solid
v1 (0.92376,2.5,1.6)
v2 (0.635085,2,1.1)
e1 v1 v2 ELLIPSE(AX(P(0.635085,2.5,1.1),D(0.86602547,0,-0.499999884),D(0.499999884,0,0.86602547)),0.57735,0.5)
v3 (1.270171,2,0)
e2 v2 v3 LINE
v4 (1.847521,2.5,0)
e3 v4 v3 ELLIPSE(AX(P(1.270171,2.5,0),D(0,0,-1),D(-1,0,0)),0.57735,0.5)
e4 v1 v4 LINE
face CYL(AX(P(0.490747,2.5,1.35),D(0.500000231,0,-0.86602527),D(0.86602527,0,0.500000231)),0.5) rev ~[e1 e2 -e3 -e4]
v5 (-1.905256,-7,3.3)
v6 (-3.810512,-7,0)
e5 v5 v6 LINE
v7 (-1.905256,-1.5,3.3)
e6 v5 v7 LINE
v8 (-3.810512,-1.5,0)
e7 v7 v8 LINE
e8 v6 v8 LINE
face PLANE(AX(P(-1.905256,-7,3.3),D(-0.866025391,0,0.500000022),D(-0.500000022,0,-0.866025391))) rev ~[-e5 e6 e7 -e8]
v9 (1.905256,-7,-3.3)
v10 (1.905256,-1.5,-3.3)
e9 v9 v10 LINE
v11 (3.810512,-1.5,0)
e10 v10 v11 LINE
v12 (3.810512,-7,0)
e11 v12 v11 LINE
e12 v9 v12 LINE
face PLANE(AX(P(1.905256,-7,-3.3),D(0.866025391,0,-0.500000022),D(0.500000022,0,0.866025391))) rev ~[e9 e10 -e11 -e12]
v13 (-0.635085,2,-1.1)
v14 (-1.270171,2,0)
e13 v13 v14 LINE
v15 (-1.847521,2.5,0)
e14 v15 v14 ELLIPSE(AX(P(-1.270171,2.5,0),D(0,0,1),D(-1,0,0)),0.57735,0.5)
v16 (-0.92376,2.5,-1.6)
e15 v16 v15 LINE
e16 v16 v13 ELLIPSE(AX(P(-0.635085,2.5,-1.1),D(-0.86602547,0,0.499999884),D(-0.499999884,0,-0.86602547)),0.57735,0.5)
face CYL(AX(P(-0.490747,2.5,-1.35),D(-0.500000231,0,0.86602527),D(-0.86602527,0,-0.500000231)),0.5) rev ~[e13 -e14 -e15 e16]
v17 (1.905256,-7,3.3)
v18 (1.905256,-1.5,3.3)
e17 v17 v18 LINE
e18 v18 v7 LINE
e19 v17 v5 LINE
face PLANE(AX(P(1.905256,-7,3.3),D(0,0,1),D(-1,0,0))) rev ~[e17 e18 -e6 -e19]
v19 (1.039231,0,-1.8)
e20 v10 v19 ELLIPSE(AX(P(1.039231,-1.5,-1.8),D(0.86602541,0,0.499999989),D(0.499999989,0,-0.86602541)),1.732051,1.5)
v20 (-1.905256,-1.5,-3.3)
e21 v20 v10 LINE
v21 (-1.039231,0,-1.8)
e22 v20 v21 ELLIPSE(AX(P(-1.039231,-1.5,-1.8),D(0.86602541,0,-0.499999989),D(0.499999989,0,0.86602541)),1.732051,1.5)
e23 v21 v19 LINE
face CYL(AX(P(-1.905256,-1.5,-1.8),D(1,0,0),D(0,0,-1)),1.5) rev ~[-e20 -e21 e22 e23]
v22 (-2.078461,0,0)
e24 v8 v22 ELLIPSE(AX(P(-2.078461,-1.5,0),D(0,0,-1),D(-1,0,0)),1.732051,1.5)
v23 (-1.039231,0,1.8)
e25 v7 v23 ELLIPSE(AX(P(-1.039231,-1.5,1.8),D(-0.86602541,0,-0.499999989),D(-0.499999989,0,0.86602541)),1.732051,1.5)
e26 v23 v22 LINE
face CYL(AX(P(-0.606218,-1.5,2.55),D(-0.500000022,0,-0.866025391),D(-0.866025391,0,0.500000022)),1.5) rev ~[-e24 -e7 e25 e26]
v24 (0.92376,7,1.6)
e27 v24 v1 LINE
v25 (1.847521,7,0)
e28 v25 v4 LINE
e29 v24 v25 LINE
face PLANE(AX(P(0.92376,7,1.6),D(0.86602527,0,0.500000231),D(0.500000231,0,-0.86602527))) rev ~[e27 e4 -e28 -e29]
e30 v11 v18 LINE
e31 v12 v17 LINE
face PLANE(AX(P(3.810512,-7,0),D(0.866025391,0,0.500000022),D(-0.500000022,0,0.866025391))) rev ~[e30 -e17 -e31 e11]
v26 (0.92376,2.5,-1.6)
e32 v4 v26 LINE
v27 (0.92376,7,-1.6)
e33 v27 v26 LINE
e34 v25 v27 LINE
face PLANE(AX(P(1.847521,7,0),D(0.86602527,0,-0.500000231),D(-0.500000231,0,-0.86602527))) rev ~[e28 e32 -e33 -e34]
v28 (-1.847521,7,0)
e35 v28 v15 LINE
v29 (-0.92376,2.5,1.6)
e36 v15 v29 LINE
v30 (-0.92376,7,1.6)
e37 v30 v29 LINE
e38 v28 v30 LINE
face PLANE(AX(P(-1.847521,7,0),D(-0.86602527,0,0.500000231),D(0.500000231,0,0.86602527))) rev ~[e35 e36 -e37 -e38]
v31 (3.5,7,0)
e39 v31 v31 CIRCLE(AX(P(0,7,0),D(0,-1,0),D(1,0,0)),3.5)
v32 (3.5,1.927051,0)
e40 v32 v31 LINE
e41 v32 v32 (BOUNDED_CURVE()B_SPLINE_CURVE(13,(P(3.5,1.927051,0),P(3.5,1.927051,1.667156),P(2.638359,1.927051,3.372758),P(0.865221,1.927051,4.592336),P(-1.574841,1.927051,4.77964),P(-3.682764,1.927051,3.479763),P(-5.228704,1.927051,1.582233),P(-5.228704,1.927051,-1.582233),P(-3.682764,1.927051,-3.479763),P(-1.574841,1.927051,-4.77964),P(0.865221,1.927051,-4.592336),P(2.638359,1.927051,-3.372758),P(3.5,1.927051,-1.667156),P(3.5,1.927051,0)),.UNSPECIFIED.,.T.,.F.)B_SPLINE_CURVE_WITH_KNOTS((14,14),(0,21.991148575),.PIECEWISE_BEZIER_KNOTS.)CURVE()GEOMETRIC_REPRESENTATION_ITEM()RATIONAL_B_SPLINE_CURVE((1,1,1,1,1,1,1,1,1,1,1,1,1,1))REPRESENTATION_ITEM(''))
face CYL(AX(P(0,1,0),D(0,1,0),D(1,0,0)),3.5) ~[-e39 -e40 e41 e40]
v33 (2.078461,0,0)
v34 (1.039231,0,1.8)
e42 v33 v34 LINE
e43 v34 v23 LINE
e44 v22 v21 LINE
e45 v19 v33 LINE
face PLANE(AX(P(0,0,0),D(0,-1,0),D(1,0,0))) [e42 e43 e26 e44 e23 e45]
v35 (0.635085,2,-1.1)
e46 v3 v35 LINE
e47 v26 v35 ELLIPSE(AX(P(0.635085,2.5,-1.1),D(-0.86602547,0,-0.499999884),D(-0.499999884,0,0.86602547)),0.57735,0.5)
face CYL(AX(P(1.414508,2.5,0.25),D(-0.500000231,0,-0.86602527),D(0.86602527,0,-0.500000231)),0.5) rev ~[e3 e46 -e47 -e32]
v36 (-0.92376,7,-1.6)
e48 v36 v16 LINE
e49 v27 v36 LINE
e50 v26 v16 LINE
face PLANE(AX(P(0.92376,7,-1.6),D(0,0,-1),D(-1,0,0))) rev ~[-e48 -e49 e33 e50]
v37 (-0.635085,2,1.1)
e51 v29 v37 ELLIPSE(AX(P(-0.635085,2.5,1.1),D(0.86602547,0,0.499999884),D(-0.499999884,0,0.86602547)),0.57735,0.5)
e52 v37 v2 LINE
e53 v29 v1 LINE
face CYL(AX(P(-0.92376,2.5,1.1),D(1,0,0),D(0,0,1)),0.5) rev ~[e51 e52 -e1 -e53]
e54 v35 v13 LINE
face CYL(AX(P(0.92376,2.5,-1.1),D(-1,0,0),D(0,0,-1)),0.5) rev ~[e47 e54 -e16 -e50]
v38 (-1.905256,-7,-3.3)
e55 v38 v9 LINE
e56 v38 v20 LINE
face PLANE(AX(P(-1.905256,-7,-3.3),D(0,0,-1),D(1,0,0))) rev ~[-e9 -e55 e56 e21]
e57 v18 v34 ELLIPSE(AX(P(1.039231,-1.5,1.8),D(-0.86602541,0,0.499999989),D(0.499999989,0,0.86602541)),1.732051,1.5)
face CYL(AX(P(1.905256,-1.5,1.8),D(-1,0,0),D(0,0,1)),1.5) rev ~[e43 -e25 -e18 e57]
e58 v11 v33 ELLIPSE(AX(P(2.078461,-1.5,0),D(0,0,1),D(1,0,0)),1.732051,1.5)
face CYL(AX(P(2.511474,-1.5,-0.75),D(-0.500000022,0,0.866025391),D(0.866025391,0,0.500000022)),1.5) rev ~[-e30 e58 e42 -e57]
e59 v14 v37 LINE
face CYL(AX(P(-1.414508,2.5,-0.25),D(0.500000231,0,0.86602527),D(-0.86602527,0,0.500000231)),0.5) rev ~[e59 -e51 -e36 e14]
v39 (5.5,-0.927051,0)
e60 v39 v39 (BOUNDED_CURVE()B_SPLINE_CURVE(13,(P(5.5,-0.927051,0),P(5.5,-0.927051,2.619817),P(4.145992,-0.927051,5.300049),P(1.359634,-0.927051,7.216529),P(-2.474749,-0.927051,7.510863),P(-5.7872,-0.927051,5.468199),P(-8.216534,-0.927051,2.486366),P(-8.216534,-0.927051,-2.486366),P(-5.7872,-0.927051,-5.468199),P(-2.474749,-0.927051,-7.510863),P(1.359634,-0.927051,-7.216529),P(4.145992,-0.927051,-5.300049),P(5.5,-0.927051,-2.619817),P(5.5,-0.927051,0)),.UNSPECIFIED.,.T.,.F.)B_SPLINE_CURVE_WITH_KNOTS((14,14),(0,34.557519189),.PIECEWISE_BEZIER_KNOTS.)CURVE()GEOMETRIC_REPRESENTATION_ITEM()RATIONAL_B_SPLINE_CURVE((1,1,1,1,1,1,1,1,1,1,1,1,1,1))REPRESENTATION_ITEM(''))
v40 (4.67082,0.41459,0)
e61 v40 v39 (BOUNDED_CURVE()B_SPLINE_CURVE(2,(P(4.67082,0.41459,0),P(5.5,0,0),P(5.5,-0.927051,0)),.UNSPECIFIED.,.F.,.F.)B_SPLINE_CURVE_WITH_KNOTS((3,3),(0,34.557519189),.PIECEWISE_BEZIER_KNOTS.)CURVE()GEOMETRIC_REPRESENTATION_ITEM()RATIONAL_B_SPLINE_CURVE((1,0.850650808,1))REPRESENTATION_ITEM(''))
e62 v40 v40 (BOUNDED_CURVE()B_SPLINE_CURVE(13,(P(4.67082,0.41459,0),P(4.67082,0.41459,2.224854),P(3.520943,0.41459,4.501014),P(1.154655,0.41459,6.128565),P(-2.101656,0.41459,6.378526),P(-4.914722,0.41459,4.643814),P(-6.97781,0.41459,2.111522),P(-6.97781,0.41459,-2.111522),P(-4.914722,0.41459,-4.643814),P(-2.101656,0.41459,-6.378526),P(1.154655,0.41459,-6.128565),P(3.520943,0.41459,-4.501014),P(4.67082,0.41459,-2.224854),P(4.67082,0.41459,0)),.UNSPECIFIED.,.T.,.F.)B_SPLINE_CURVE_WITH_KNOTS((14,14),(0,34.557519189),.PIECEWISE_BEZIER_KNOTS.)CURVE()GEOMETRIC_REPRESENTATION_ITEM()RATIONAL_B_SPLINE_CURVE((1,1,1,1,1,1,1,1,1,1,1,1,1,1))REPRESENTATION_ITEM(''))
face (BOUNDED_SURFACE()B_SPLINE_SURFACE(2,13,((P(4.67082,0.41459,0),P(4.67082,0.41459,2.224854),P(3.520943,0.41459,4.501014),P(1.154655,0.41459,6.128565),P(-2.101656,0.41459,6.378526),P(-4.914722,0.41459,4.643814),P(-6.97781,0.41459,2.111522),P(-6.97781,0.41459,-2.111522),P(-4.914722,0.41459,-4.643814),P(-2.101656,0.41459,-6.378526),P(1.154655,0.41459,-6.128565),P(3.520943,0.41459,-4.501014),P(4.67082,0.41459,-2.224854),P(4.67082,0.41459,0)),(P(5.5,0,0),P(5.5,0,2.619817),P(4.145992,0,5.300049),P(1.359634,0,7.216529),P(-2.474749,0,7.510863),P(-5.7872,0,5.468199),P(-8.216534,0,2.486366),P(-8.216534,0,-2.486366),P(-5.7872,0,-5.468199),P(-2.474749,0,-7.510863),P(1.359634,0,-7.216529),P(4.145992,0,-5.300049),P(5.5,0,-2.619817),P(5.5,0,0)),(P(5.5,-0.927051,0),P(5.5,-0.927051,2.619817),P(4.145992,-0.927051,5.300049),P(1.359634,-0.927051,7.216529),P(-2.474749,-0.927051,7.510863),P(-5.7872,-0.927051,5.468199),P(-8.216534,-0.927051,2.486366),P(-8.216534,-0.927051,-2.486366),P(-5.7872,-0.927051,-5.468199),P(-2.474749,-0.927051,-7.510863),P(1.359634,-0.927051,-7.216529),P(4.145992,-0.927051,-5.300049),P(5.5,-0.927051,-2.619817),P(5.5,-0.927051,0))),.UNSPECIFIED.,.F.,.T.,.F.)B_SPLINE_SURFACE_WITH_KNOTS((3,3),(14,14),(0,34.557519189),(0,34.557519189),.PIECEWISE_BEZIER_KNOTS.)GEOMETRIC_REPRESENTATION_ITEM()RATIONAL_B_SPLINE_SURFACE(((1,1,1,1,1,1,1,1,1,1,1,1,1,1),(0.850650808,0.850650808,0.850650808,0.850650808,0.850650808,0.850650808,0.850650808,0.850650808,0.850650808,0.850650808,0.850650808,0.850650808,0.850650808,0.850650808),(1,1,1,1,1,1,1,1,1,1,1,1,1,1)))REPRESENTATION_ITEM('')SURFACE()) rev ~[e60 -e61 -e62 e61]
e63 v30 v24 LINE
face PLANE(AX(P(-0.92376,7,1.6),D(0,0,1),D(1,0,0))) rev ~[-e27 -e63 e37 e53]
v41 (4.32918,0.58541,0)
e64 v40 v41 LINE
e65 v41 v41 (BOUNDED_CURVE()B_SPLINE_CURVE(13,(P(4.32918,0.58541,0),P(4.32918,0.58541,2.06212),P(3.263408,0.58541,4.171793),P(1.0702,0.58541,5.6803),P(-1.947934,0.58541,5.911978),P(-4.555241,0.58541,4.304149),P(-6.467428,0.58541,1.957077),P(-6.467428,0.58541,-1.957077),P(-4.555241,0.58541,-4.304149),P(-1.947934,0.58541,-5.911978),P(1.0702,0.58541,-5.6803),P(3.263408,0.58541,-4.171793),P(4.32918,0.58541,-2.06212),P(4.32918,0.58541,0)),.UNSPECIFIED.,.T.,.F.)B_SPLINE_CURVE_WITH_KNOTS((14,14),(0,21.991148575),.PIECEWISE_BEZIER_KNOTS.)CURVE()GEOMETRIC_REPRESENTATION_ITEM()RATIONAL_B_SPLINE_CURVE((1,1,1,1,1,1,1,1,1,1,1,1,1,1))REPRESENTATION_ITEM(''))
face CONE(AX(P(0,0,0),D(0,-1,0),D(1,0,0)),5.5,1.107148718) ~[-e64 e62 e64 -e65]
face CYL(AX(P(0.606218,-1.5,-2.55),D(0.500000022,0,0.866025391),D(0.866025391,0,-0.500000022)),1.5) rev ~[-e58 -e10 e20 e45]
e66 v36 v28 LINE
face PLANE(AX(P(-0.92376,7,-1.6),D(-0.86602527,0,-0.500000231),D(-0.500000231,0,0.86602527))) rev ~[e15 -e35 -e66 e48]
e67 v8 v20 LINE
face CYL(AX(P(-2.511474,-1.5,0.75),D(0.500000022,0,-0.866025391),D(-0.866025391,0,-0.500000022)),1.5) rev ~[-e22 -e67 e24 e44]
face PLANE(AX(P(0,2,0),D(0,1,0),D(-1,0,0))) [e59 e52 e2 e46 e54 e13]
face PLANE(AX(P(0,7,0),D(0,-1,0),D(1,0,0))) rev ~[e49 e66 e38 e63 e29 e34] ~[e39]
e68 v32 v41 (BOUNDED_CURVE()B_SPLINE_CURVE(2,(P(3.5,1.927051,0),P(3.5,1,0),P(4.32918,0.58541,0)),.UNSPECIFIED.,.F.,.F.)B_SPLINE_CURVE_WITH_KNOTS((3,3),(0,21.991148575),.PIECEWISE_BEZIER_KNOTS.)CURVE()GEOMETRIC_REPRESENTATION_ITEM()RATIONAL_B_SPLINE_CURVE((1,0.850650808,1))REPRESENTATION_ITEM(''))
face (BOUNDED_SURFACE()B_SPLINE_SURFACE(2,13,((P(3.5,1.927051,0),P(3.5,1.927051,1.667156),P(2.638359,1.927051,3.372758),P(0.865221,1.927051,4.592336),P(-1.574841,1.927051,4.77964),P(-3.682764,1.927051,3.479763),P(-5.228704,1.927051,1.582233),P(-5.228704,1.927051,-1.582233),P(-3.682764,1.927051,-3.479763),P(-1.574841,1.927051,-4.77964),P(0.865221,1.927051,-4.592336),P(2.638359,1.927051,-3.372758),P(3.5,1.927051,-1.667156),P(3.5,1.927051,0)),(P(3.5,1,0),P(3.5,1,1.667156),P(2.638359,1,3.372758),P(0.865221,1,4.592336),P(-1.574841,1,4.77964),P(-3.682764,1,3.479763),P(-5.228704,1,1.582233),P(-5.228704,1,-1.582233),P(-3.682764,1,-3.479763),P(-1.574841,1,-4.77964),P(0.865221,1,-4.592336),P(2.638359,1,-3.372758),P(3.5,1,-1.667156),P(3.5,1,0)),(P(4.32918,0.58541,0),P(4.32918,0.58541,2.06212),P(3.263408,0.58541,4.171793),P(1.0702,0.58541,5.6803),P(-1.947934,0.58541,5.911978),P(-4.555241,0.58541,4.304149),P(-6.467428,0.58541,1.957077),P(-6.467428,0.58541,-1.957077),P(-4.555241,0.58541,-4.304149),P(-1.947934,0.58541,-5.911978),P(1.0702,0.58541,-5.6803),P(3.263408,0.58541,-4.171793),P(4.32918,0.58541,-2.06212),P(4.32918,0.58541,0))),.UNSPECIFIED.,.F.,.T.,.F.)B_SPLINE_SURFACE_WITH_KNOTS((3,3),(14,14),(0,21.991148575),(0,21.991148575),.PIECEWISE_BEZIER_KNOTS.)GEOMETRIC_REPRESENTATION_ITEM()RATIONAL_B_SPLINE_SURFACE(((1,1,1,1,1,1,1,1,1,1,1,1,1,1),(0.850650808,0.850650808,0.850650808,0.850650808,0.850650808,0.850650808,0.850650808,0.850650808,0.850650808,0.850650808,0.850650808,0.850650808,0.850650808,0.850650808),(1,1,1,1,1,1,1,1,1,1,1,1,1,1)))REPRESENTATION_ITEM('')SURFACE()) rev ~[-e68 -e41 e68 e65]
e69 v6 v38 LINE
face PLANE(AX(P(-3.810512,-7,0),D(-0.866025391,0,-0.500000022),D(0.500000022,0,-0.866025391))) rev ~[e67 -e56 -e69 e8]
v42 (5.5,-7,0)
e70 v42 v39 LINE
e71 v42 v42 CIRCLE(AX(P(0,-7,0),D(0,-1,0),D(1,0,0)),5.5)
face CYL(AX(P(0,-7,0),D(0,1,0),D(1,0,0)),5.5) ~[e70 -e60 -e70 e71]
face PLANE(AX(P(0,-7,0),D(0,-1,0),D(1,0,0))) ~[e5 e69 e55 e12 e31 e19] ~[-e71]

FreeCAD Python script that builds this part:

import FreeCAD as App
import Part
import Sketcher

V = App.Vector
Q = App.Units.Quantity


def edges_at(feature, points):
    """Names of the edges that pass closest to the given points."""
    edges = feature.Shape.Edges
    near = lambda p: min(range(len(edges)), key=lambda i: edges[i].distToShape(Part.Vertex(*p))[0])
    return sorted({f"Edge{near(p) + 1}" for p in points})

doc = App.newDocument("Part")
body = doc.addObject("PartDesign::Body", "Body")

# Sketch on XY plane
sketch1 = doc.addObject("Sketcher::SketchObject", "Sketch")
body.addObject(sketch1)
sketch1.AttachmentSupport = (doc.XY_Plane, [""])
sketch1.MapMode = "FlatFace"
sketch1.addGeometry([
    Part.LineSegment(V(3.5, 1, 0), V(3.5, 7, 0)),  # 0
    Part.LineSegment(V(3.5, 7, 0), V(0, 7, 0)),  # 1
    Part.LineSegment(V(0, 7, 0), V(0, -7, 0)),  # 2
    Part.LineSegment(V(0, -7, 0), V(5.5, -7, 0)),  # 3
    Part.LineSegment(V(5.5, -7, 0), V(5.5, 0, 0)),  # 4
    Part.LineSegment(V(5.5, 0, 0), V(3.5, 1, 0)),  # 5
], False)
sketch1.addConstraint([
    Sketcher.Constraint("Coincident", 0, 2, 1, 1),
    Sketcher.Constraint("Coincident", 1, 2, 2, 1),
    Sketcher.Constraint("Coincident", 2, 2, 3, 1),
    Sketcher.Constraint("Coincident", 3, 2, 4, 1),
    Sketcher.Constraint("Coincident", 4, 2, 5, 1),
    Sketcher.Constraint("Coincident", 5, 2, 0, 1),
    Sketcher.Constraint("Vertical", 0),
    Sketcher.Constraint("Horizontal", 1),
    Sketcher.Constraint("Vertical", 2),
    Sketcher.Constraint("Horizontal", 3),
    Sketcher.Constraint("Vertical", 4),
    Sketcher.Constraint("Symmetric", 1, 2, 2, 2, -1, 1),
    Sketcher.Constraint("PointOnObject", 4, 2, -1),
    Sketcher.Constraint("DistanceY", 0, 1, 0, 2, 6.0),
    Sketcher.Constraint("DistanceY", 2, 2, 2, 1, 14.0),
    Sketcher.Constraint("DistanceX", 1, 2, 1, 1, 3.5),
    Sketcher.Constraint("DistanceX", 3, 1, 3, 2, 5.5),
])
revolution = doc.addObject("PartDesign::Revolution", "Revolution")
body.addObject(revolution)
revolution.Profile = sketch1
revolution.ReferenceAxis = (sketch1, ["V_Axis"])
revolution.Angle = 360

# Sketch on XZ plane
sketch2 = doc.addObject("Sketcher::SketchObject", "Sketch001")
body.addObject(sketch2)
sketch2.AttachmentSupport = (doc.XZ_Plane, [""])
sketch2.MapMode = "FlatFace"
sketch2.AttachmentOffset = App.Placement(V(0, 0, -7), App.Rotation())
sketch2.addGeometry([
    Part.LineSegment(V(-0.92376, -1.6, 0), V(-1.847521, 0, 0)),  # 0
    Part.LineSegment(V(-1.847521, 0, 0), V(-0.92376, 1.6, 0)),  # 1
    Part.LineSegment(V(-0.92376, 1.6, 0), V(0.92376, 1.6, 0)),  # 2
    Part.LineSegment(V(0.92376, 1.6, 0), V(1.847521, 0, 0)),  # 3
    Part.LineSegment(V(1.847521, 0, 0), V(0.92376, -1.6, 0)),  # 4
    Part.LineSegment(V(0.92376, -1.6, 0), V(-0.92376, -1.6, 0)),  # 5
], False)
sketch2.addConstraint([
    Sketcher.Constraint("Coincident", 0, 2, 1, 1),
    Sketcher.Constraint("Coincident", 1, 2, 2, 1),
    Sketcher.Constraint("Coincident", 2, 2, 3, 1),
    Sketcher.Constraint("Coincident", 3, 2, 4, 1),
    Sketcher.Constraint("Coincident", 4, 2, 5, 1),
    Sketcher.Constraint("Coincident", 5, 2, 0, 1),
    Sketcher.Constraint("Horizontal", 2),
    Sketcher.Constraint("Horizontal", 5),
    Sketcher.Constraint("Symmetric", 0, 2, 3, 2, -1, 1),
    Sketcher.Constraint("Symmetric", 1, 2, 4, 2, -1, 1),
    Sketcher.Constraint("PointOnObject", 0, 2, -1),
    Sketcher.Constraint("Parallel", 0, 3),
    Sketcher.Constraint("Vertical", 2, 2, 4, 2),
    Sketcher.Constraint("Angle", 0, Q("120.000015 deg")),
    Sketcher.Constraint("DistanceY", -1, 1, 1, 2, 1.6),
    Sketcher.Constraint("DistanceX", 2, 1, 2, 2, 1.84752),
])
pocket1 = doc.addObject("PartDesign::Pocket", "Pocket")
body.addObject(pocket1)
pocket1.Profile = sketch2
pocket1.Length = 5
pocket1.Reversed = True
doc.recompute()

fillet = doc.addObject("PartDesign::Fillet", "Fillet")
body.addObject(fillet)
fillet.Base = (pocket1, edges_at(pocket1, [(-5.5, 0, 0), (-3.5, 1, 0)]))
fillet.Radius = 1.5

# Sketch on XZ plane
sketch3 = doc.addObject("Sketcher::SketchObject", "Sketch002")
body.addObject(sketch3)
sketch3.AttachmentSupport = (doc.XZ_Plane, [""])
sketch3.MapMode = "FlatFace"
sketch3.AttachmentOffset = App.Placement(V(0, 0, 7), App.Rotation())
sketch3.addGeometry([
    Part.LineSegment(V(1.905256, -3.3, 0), V(3.810512, 0, 0)),  # 0
    Part.LineSegment(V(3.810512, 0, 0), V(1.905256, 3.3, 0)),  # 1
    Part.LineSegment(V(1.905256, 3.3, 0), V(-1.905256, 3.3, 0)),  # 2
    Part.LineSegment(V(-1.905256, 3.3, 0), V(-3.810512, 0, 0)),  # 3
    Part.LineSegment(V(-3.810512, 0, 0), V(-1.905256, -3.3, 0)),  # 4
    Part.LineSegment(V(-1.905256, -3.3, 0), V(1.905256, -3.3, 0)),  # 5
], False)
sketch3.addConstraint([
    Sketcher.Constraint("Coincident", 0, 2, 1, 1),
    Sketcher.Constraint("Coincident", 1, 2, 2, 1),
    Sketcher.Constraint("Coincident", 2, 2, 3, 1),
    Sketcher.Constraint("Coincident", 3, 2, 4, 1),
    Sketcher.Constraint("Coincident", 4, 2, 5, 1),
    Sketcher.Constraint("Coincident", 5, 2, 0, 1),
    Sketcher.Constraint("Horizontal", 2),
    Sketcher.Constraint("Horizontal", 5),
    Sketcher.Constraint("Symmetric", 0, 2, 3, 2, -1, 1),
    Sketcher.Constraint("Symmetric", 1, 2, 4, 2, -1, 1),
    Sketcher.Constraint("PointOnObject", 0, 2, -1),
    Sketcher.Constraint("Parallel", 0, 3),
    Sketcher.Constraint("Vertical", 2, 2, 4, 2),
    Sketcher.Constraint("Angle", 0, Q("59.999999 deg")),
    Sketcher.Constraint("DistanceY", -1, 1, 1, 2, 3.3),
    Sketcher.Constraint("DistanceX", 2, 2, 2, 1, 3.810512),
])
pocket2 = doc.addObject("PartDesign::Pocket", "Pocket001")
body.addObject(pocket2)
pocket2.Profile = sketch3
pocket2.Length = 7
doc.recompute()

fillet2 = doc.addObject("PartDesign::Fillet", "Fillet001")
body.addObject(fillet2)
fillet2.Base = (pocket2, edges_at(pocket2, [
    (0, 0, -3.3),
    (2.858, 0, -1.65),
    (2.858, 0, 1.65),
    (0, 0, 3.3),
    (-2.858, 0, 1.65),
    (-2.858, 0, -1.65),
]))
fillet2.Radius = 1.5
doc.recompute()

fillet3 = doc.addObject("PartDesign::Fillet", "Fillet002")
body.addObject(fillet3)
fillet3.Base = (fillet2, edges_at(fillet2, [
    (0, 2, -1.6),
    (-1.386, 2, -0.8),
    (1.386, 2, -0.8),
    (-1.386, 2, 0.8),
    (0, 2, 1.6),
    (1.386, 2, 0.8),
]))
fillet3.Radius = 0.5

doc.recompute()
